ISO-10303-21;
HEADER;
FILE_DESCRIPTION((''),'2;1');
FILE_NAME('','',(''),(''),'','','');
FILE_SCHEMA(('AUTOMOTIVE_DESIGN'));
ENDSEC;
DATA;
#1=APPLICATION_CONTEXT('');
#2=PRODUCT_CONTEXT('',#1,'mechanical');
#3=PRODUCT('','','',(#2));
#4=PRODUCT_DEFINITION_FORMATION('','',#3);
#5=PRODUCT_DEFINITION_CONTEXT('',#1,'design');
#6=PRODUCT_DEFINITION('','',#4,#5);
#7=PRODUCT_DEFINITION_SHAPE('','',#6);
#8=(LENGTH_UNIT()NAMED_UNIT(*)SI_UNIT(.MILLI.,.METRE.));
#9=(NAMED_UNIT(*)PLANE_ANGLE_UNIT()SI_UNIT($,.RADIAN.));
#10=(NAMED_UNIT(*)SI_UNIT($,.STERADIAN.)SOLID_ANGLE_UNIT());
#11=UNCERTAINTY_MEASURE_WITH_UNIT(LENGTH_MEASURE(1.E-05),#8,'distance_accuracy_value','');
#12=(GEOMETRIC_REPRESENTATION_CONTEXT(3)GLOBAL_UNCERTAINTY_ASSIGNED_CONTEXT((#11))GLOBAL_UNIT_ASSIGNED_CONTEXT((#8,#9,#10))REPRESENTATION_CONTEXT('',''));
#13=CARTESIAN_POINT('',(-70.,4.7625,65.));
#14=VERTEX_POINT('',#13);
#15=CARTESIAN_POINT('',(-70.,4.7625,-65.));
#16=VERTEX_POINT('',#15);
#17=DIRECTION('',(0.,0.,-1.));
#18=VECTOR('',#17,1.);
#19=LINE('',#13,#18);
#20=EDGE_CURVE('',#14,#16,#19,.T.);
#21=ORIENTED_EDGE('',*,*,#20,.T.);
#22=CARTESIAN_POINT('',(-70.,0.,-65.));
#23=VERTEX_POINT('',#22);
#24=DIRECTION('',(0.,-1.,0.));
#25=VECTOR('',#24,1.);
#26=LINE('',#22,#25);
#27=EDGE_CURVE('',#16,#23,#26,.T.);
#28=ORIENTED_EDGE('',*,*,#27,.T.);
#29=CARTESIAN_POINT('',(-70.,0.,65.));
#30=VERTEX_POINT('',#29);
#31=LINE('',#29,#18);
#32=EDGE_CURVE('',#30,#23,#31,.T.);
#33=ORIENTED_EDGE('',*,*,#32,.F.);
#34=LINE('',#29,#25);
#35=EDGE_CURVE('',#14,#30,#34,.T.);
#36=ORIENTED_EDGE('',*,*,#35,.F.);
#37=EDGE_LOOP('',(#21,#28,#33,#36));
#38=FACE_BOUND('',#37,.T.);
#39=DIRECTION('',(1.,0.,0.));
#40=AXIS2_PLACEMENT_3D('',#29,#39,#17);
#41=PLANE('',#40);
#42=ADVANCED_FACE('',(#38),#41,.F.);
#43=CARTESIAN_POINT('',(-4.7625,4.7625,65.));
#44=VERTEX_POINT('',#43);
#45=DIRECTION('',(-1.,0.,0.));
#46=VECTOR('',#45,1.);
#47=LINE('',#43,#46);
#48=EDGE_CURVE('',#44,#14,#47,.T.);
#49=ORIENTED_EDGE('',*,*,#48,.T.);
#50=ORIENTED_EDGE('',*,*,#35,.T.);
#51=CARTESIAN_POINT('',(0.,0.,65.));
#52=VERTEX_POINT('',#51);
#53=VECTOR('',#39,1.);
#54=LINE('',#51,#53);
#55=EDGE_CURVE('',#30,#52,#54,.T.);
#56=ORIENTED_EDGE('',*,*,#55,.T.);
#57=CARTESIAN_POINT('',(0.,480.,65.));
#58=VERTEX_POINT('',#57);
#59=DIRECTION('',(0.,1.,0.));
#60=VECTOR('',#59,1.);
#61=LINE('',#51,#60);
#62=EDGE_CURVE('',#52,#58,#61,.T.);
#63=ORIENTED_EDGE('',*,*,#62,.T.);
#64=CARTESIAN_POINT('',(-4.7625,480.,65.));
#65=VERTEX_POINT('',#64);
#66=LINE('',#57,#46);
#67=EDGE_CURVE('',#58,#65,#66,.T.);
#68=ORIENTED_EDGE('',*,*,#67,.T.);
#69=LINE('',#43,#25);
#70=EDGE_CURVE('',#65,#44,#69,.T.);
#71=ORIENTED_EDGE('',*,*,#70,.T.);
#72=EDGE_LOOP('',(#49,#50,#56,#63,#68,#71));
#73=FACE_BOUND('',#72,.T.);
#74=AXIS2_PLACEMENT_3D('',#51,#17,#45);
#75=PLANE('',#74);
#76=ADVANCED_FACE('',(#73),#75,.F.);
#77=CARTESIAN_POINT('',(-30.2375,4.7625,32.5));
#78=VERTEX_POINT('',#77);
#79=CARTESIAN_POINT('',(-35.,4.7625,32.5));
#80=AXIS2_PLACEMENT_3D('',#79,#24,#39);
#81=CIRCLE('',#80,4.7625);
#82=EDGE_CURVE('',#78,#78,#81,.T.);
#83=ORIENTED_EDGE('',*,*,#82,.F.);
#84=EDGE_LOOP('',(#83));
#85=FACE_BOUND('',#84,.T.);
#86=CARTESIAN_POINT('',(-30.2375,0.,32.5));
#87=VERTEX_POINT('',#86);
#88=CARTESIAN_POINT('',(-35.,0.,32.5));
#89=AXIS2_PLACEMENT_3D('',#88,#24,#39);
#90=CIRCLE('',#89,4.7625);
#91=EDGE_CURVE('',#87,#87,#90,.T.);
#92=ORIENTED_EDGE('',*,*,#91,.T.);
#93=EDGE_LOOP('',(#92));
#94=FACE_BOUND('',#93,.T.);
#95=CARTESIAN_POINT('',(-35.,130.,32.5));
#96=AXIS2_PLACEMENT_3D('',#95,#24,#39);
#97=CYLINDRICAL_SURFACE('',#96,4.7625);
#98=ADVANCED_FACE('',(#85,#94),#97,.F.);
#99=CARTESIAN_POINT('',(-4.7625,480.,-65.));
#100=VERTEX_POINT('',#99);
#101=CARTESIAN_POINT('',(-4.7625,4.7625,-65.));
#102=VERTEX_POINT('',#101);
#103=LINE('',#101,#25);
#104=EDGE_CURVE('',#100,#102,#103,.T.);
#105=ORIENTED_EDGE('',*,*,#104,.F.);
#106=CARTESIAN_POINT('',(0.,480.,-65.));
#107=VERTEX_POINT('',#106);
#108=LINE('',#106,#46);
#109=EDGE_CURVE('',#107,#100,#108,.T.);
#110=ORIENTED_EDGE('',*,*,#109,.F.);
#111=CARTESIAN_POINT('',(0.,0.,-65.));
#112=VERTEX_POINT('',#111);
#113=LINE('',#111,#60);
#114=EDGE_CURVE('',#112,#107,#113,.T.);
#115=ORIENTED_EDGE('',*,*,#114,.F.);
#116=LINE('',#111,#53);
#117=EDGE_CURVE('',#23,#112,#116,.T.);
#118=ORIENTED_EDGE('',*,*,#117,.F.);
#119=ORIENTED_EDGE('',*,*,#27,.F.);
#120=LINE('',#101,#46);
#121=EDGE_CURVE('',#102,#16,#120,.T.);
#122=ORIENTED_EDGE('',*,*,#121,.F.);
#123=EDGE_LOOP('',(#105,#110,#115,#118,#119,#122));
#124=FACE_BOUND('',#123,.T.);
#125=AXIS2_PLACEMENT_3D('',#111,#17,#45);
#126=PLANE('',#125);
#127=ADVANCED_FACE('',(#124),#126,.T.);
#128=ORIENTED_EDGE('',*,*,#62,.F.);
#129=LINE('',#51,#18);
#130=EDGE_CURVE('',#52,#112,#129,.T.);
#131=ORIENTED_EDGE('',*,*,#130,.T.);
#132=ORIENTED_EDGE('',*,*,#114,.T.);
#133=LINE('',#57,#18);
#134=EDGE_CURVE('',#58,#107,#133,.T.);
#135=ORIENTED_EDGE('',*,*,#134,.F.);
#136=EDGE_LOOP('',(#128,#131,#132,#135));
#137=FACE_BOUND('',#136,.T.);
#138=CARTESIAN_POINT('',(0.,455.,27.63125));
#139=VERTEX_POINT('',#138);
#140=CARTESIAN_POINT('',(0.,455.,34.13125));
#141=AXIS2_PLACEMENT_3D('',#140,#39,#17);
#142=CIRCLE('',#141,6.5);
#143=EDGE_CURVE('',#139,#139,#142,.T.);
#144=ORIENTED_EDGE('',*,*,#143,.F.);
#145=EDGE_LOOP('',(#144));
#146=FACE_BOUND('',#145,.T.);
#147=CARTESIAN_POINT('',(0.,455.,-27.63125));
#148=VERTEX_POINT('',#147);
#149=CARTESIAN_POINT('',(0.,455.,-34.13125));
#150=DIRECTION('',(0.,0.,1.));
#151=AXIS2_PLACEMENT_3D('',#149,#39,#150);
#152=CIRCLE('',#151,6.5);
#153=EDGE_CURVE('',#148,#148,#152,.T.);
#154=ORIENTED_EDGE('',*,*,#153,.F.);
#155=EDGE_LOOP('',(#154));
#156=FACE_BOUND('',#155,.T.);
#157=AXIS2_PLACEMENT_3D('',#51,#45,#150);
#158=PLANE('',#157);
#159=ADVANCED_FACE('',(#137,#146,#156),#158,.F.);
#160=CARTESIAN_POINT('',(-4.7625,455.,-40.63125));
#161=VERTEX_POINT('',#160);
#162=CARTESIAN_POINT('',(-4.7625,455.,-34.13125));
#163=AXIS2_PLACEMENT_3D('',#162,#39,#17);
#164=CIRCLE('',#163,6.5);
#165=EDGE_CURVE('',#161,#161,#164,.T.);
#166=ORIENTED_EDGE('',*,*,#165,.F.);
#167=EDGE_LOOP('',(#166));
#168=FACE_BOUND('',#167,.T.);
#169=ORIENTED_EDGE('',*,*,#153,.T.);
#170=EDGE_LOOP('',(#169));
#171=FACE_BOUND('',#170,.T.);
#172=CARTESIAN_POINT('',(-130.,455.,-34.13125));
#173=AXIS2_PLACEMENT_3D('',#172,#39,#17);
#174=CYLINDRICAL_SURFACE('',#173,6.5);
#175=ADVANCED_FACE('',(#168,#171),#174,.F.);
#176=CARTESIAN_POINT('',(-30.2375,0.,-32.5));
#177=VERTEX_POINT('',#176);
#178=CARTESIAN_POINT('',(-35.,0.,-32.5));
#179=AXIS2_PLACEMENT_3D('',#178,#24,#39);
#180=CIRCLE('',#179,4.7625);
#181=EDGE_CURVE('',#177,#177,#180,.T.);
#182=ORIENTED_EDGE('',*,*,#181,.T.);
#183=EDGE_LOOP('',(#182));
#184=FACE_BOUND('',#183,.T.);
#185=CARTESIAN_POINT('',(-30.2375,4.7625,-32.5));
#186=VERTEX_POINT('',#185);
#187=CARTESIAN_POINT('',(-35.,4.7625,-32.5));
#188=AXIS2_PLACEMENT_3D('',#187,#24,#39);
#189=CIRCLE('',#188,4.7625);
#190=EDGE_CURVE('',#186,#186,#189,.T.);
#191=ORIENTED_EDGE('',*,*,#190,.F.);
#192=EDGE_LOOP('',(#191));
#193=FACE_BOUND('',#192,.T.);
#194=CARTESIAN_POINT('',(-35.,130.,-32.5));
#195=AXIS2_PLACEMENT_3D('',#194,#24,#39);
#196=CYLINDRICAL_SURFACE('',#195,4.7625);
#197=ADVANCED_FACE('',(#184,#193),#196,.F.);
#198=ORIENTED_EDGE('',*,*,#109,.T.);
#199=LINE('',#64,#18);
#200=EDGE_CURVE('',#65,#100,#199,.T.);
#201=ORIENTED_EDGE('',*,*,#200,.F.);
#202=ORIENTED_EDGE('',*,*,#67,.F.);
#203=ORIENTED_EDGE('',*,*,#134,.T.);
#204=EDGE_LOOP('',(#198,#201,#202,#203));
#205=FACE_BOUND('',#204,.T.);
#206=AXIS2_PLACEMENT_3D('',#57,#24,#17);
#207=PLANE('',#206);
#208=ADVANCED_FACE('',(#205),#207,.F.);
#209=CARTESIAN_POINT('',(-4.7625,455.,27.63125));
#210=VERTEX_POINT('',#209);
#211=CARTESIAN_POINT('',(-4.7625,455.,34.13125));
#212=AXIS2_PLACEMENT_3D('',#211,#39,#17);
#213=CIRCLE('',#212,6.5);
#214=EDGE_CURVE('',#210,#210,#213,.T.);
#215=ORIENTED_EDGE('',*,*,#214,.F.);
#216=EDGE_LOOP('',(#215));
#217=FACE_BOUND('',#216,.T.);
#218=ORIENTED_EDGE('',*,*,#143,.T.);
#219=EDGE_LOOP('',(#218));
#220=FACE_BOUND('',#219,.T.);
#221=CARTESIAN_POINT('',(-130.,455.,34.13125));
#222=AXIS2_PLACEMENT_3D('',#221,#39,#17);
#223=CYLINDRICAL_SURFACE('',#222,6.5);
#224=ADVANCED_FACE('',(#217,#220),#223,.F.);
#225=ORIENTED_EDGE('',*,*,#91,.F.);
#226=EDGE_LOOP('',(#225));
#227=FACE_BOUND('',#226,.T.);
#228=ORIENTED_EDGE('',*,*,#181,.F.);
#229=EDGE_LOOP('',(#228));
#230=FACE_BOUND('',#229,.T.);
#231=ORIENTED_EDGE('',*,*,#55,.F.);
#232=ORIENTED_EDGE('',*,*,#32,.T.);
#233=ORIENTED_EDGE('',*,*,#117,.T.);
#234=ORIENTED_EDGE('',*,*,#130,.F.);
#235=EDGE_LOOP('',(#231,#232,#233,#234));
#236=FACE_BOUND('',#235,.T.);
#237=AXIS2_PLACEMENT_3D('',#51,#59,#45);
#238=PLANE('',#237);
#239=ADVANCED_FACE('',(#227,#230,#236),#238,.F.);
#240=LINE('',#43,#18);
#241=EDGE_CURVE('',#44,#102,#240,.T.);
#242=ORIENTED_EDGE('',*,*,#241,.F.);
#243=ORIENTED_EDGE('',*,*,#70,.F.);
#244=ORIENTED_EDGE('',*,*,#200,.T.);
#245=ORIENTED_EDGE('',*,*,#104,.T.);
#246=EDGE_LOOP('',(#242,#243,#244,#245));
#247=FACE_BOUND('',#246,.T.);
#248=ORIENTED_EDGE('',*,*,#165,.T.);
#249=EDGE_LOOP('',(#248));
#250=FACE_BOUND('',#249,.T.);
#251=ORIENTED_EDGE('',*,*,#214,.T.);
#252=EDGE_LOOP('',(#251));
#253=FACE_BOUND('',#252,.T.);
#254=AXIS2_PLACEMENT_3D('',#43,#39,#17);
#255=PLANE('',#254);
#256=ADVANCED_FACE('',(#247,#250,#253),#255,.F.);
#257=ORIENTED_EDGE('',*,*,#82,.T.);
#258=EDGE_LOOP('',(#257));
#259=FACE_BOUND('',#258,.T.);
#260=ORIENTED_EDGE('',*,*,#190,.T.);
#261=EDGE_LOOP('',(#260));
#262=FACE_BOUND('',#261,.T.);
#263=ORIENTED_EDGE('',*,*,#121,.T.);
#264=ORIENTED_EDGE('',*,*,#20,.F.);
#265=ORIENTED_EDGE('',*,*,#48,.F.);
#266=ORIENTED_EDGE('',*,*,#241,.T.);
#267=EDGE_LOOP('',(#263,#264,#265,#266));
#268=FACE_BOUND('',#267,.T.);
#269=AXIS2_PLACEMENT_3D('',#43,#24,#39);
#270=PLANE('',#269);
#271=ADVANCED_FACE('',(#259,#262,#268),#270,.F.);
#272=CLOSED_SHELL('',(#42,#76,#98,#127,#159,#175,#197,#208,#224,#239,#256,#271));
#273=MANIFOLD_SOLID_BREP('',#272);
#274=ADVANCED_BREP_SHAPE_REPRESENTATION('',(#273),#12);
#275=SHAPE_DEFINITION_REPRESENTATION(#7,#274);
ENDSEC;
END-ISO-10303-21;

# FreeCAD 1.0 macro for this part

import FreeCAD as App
import Part
import Sketcher
from FreeCAD import Vector

doc = App.newDocument("Part")
params = doc.addObject("Spreadsheet::Sheet", "Params")
for row, (alias, value) in enumerate([
    ("sketch1_width", "70 mm"),
    ("sketch1_height", "480 mm"),
    ("pad1_length", "130 mm"),
    ("pocket1_length", "130 mm"),
    ("sketch3_diameter", "13 mm"),
    ("pocket2_length", "130 mm"),
], start=1):
    params.set(f"A{row}", alias)
    params.set(f"B{row}", "=" + value)
    params.setAlias(f"B{row}", alias)

body = doc.addObject("PartDesign::Body", "Body")

sketch1 = body.newObject("Sketcher::SketchObject", "Sketch")
sketch1.AttachmentSupport = (doc.getObject("XY_Plane"), [""])
sketch1.MapMode = "FlatFace"
sketch1.addGeometry([
    Part.LineSegment(Vector(0, 0, 0), Vector(0, 480, 0)),
    Part.LineSegment(Vector(0, 480, 0), Vector(-4.7625, 480, 0)),
    Part.LineSegment(Vector(-4.7625, 480, 0), Vector(-4.7625, 4.7625, 0)),
    Part.LineSegment(Vector(-4.7625, 4.7625, 0), Vector(-70, 4.7625, 0)),
    Part.LineSegment(Vector(-70, 4.7625, 0), Vector(-70, 0, 0)),
    Part.LineSegment(Vector(-70, 0, 0), Vector(0, 0, 0)),
], False)
sketch1.addConstraint([
    Sketcher.Constraint("Coincident", 0, 2, 1, 1),
    Sketcher.Constraint("Coincident", 1, 2, 2, 1),
    Sketcher.Constraint("Coincident", 2, 2, 3, 1),
    Sketcher.Constraint("Coincident", 3, 2, 4, 1),
    Sketcher.Constraint("Coincident", 4, 2, 5, 1),
    Sketcher.Constraint("Coincident", 5, 2, 0, 1),
    Sketcher.Constraint("Vertical", 0),
    Sketcher.Constraint("Horizontal", 1),
    Sketcher.Constraint("Vertical", 2),
    Sketcher.Constraint("Horizontal", 3),
    Sketcher.Constraint("Vertical", 4),
    Sketcher.Constraint("Horizontal", 5),
    Sketcher.Constraint("Coincident", 5, 2, -1, 1),
    Sketcher.Constraint("Equal", 1, 4),
    Sketcher.Constraint("DistanceX", 5, 1, 5, 2, 70.0),
    Sketcher.Constraint("DistanceY", 0, 1, 0, 2, 480.0),
    Sketcher.Constraint("DistanceX", 1, 2, 1, 1, 4.7625),
])
sketch1.setExpression("Constraints[14]", "Params.sketch1_width")
sketch1.setExpression("Constraints[15]", "Params.sketch1_height")
pad1 = body.newObject("PartDesign::Pad", "Pad")
pad1.Profile = sketch1
pad1.setExpression("Length", "Params.pad1_length")
pad1.Midplane = True

sketch2 = body.newObject("Sketcher::SketchObject", "Sketch001")
sketch2.AttachmentSupport = (doc.getObject("XZ_Plane"), [""])
sketch2.MapMode = "FlatFace"
sketch2.addGeometry([
    Part.Circle(Vector(-35, 32.5, 0), Vector(0, 0, 1), 4.7625),
    Part.Circle(Vector(-35, -32.5, 0), Vector(0, 0, 1), 4.7625),
], False)
sketch2.addConstraint([
    Sketcher.Constraint("Equal", 0, 1),
    Sketcher.Constraint("Symmetric", 0, 3, 1, 3, -1),
    Sketcher.Constraint("Diameter", 0, 9.525),
    Sketcher.Constraint("DistanceX", 0, 3, -1, 1, 35.0),
    Sketcher.Constraint("DistanceY", 1, 3, 0, 3, 65.0),
])
pocket1 = body.newObject("PartDesign::Pocket", "Pocket")
pocket1.Profile = sketch2
pocket1.setExpression("Length", "Params.pocket1_length")

sketch3 = body.newObject("Sketcher::SketchObject", "Sketch002")
sketch3.AttachmentSupport = (doc.getObject("YZ_Plane"), [""])
sketch3.MapMode = "FlatFace"
sketch3.addGeometry([
    Part.Circle(Vector(455, 34.13125, 0), Vector(0, 0, 1), 6.5),
    Part.Circle(Vector(455, -34.13125, 0), Vector(0, 0, 1), 6.5),
], False)
sketch3.addConstraint([
    Sketcher.Constraint("Equal", 0, 1),
    Sketcher.Constraint("Symmetric", 0, 3, 1, 3, -1),
    Sketcher.Constraint("Diameter", 0, 13.0),
    Sketcher.Constraint("DistanceX", -1, 1, 0, 3, 455.0),
    Sketcher.Constraint("DistanceY", 1, 3, 0, 3, 68.2625),
])
sketch3.setExpression("Constraints[2]", "Params.sketch3_diameter")
pocket2 = body.newObject("PartDesign::Pocket", "Pocket001")
pocket2.Profile = sketch3
pocket2.setExpression("Length", "Params.pocket2_length")

doc.recompute()
